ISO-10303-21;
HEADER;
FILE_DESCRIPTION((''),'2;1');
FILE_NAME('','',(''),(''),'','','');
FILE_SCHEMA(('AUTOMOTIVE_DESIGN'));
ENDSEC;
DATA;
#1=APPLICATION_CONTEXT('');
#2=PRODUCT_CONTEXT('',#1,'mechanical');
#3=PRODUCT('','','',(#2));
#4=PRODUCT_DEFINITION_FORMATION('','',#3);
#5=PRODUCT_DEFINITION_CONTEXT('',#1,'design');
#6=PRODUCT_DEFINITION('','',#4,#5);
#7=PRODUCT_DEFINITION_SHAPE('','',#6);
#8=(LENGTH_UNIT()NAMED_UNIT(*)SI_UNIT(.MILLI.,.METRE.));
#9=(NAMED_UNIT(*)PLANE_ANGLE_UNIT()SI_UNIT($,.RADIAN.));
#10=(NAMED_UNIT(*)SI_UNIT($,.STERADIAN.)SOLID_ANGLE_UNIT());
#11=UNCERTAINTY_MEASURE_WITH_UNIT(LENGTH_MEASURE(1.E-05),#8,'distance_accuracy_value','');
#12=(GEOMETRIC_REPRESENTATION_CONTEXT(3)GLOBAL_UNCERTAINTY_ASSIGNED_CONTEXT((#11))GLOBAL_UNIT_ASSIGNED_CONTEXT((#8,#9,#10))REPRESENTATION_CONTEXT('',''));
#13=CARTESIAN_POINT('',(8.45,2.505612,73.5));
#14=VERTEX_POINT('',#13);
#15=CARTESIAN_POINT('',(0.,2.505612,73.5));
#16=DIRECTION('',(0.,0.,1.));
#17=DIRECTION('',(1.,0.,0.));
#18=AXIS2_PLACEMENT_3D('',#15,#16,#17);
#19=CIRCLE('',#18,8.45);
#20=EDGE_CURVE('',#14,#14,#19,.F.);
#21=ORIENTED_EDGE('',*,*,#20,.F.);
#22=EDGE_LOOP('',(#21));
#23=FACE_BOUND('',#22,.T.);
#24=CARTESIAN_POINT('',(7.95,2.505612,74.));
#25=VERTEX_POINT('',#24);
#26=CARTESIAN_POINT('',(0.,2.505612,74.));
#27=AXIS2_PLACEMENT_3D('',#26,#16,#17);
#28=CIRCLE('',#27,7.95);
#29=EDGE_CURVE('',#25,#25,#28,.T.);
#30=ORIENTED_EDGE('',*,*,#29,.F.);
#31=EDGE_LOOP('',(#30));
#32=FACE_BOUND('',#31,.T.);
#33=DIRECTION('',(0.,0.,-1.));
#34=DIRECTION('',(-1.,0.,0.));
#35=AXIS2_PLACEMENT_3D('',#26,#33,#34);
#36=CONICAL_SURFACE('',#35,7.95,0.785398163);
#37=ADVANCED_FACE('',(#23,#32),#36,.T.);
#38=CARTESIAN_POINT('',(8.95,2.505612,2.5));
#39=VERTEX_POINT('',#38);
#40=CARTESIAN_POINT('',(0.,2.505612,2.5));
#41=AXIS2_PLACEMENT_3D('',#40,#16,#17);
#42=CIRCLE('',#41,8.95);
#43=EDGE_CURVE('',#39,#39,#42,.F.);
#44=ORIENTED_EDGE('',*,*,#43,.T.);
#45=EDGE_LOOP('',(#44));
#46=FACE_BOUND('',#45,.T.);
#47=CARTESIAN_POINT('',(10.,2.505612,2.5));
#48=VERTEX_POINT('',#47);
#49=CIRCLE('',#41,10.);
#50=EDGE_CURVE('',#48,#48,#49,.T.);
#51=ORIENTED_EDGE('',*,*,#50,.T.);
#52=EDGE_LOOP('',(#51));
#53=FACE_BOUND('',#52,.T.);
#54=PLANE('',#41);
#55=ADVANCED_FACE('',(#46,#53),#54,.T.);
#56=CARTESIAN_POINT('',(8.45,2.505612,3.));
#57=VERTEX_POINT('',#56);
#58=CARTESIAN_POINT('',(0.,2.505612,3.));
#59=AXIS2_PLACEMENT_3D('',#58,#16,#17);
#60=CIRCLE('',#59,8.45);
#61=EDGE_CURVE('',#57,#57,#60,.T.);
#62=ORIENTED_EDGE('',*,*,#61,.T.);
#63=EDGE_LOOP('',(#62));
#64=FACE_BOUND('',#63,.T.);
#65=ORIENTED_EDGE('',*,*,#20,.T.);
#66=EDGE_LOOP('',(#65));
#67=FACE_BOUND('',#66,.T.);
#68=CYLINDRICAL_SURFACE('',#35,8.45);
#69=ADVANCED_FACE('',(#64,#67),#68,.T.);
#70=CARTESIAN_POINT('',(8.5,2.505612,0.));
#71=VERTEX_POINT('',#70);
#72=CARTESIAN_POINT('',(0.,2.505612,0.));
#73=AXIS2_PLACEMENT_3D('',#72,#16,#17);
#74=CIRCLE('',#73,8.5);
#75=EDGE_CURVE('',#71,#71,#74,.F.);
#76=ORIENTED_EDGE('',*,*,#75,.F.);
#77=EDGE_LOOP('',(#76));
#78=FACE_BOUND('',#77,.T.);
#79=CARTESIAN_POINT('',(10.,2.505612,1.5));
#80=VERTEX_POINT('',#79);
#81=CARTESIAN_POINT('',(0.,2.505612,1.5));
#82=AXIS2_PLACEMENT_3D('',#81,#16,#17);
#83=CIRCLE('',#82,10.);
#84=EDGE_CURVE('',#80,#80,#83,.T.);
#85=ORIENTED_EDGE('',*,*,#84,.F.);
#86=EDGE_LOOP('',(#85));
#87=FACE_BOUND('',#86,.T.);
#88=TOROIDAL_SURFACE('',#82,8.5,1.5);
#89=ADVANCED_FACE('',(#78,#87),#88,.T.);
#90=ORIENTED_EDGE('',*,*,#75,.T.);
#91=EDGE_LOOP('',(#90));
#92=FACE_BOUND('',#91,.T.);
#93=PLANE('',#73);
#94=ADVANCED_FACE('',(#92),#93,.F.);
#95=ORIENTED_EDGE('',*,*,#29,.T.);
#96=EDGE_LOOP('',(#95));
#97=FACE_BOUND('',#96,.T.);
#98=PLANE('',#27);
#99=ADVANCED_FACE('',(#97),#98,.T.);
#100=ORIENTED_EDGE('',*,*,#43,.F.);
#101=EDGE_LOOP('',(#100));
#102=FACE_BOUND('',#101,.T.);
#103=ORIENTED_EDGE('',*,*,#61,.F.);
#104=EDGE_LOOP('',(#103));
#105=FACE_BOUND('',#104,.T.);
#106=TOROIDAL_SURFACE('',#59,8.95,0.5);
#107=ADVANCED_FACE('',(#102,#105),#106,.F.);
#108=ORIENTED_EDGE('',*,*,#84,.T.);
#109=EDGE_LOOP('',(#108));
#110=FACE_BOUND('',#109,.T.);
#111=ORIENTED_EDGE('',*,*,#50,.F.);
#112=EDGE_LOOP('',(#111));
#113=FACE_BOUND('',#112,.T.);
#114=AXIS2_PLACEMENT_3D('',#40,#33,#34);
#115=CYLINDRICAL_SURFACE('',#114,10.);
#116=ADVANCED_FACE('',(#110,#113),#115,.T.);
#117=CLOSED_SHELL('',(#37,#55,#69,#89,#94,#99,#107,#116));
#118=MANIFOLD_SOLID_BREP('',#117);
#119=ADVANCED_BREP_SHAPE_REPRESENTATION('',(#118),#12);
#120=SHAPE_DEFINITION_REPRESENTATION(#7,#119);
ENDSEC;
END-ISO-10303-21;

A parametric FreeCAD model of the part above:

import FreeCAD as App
import Part
import Sketcher
from FreeCAD import Vector
Q = App.Units.Quantity


def edges_at(feature, points):
    """Names of the edges that pass closest to the given points."""
    edges = feature.Shape.Edges
    near = lambda p: min(range(len(edges)), key=lambda i: edges[i].distToShape(Part.Vertex(*p))[0])
    return sorted({f"Edge{near(p) + 1}" for p in points})

doc = App.newDocument("Part")
params = doc.addObject("Spreadsheet::Sheet", "Params")
for row, (alias, value) in enumerate([
    ("sketch1_diameter", "20 mm"),
    ("pad1_length", "2.5 mm"),
    ("sketch2_diameter", "16.9 mm"),
    ("pad2_length", "71.5 mm"),
    ("fillet_radius", "0.5 mm"),
    ("chamfer_size", "0.5 mm"),
    ("fillet2_radius", "1.5 mm"),
], start=1):
    params.set(f"A{row}", alias)
    params.set(f"B{row}", "=" + value)
    params.setAlias(f"B{row}", alias)

body = doc.addObject("PartDesign::Body", "Body")

# Sketch on XY plane
sketch1 = doc.addObject("Sketcher::SketchObject", "Sketch")
body.addObject(sketch1)
sketch1.AttachmentSupport = (doc.XY_Plane, [""])
sketch1.MapMode = "FlatFace"
sketch1.addGeometry(Part.Circle(Vector(0, 2.505612, 0), Vector(0, 0, 1), 10), False)
sketch1.addConstraint(Sketcher.Constraint("PointOnObject", 0, 3, -2))
sketch1.addConstraint(Sketcher.Constraint("Diameter", 0, Q("20 mm")))
sketch1.addConstraint(Sketcher.Constraint("DistanceY", -1, 1, 0, 3, Q("2.505612 mm")))
sketch1.setExpression("Constraints[1]", "Params.sketch1_diameter")
pad1 = doc.addObject("PartDesign::Pad", "Pad")
body.addObject(pad1)
pad1.Profile = sketch1
pad1.setExpression("Length", "Params.pad1_length")

# Sketch on XY plane
sketch2 = doc.addObject("Sketcher::SketchObject", "Sketch001")
body.addObject(sketch2)
sketch2.AttachmentSupport = (doc.XY_Plane, [""])
sketch2.MapMode = "FlatFace"
sketch2.AttachmentOffset = App.Placement(Vector(0, 0, 2.5), App.Rotation())
sketch2.addGeometry(Part.Circle(Vector(0, 2.505612, 0), Vector(0, 0, 1), 8.45), False)
sketch2.addConstraint(Sketcher.Constraint("PointOnObject", 0, 3, -2))
sketch2.addConstraint(Sketcher.Constraint("Diameter", 0, Q("16.9 mm")))
sketch2.addConstraint(Sketcher.Constraint("DistanceY", -1, 1, 0, 3, Q("2.505612 mm")))
sketch2.setExpression("Constraints[1]", "Params.sketch2_diameter")
pad2 = doc.addObject("PartDesign::Pad", "Pad001")
body.addObject(pad2)
pad2.Profile = sketch2
pad2.setExpression("Length", "Params.pad2_length")
doc.recompute()

fillet = doc.addObject("PartDesign::Fillet", "Fillet")
body.addObject(fillet)
fillet.Base = (pad2, edges_at(pad2, [(-8.45, 2.506, 2.5)]))
fillet.setExpression("Radius", "Params.fillet_radius")
doc.recompute()

chamfer = doc.addObject("PartDesign::Chamfer", "Chamfer")
body.addObject(chamfer)
chamfer.Base = (fillet, edges_at(fillet, [(-8.45, 2.506, 74)]))
chamfer.setExpression("Size", "Params.chamfer_size")
doc.recompute()

fillet2 = doc.addObject("PartDesign::Fillet", "Fillet001")
body.addObject(fillet2)
fillet2.Base = (chamfer, edges_at(chamfer, [(-10, 2.506, 0)]))
fillet2.setExpression("Radius", "Params.fillet2_radius")

doc.recompute()
